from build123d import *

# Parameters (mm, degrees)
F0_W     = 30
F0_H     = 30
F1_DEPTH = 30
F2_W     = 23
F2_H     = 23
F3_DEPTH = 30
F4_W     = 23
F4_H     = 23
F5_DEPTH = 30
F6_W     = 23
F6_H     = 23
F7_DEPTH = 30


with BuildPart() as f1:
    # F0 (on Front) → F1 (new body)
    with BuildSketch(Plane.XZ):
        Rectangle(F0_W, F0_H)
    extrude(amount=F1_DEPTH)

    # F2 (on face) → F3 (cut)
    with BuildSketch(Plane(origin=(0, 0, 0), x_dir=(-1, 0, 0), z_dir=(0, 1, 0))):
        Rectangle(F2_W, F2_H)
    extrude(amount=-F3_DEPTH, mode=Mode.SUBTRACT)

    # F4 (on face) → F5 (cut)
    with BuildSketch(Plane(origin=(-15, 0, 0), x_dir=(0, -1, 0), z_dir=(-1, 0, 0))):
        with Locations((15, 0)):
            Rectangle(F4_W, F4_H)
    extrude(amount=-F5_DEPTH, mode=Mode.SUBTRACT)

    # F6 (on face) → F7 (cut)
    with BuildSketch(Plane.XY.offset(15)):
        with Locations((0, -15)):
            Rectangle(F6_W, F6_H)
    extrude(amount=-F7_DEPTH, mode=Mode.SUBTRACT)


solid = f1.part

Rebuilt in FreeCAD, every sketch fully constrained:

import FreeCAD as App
import Part
import Sketcher
Q = App.Units.Quantity


def add_polygon(sketch, points):
    """Adds a closed chain of lines whose ends are joined by coincident constraints."""
    first, n = sketch.GeometryCount, len(points)
    for a, b in zip(points, points[1:] + points[:1]):
        sketch.addGeometry(Part.LineSegment(App.Vector(*a, 0), App.Vector(*b, 0)), False)
    for i in range(n):
        sketch.addConstraint(Sketcher.Constraint("Coincident", first + i, 2, first + (i + 1) % n, 1))

doc = App.newDocument("Part")
body = doc.addObject("PartDesign::Body", "Body")

# Sketch on XZ plane
sketch1 = body.newObject("Sketcher::SketchObject", "Sketch")
sketch1.AttachmentSupport = (doc.getObject("XZ_Plane"), [""])
sketch1.MapMode = "FlatFace"
add_polygon(sketch1, [(-15, 15), (-15, -15), (15, -15), (15, 15)])  # lines 0-3
sketch1.addConstraint([
    Sketcher.Constraint("Vertical", 0),
    Sketcher.Constraint("Horizontal", 1),
    Sketcher.Constraint("Vertical", 2),
    Sketcher.Constraint("Horizontal", 3),
    Sketcher.Constraint("Symmetric", 0, 2, 2, 2, -1, 1),
    Sketcher.Constraint("Equal", 3, 0),
    Sketcher.Constraint("DistanceX", 1, 1, 1, 2, Q("30 mm")),
])
pad1 = body.newObject("PartDesign::Pad", "Pad")
pad1.Profile = sketch1
pad1.Length = 30

# Sketch on XZ plane
sketch2 = body.newObject("Sketcher::SketchObject", "Sketch001")
sketch2.AttachmentSupport = (doc.getObject("XZ_Plane"), [""])
sketch2.MapMode = "FlatFace"
add_polygon(sketch2, [(12, 12), (12, -12), (-12, -12), (-12, 12)])  # lines 0-3
sketch2.addConstraint([
    Sketcher.Constraint("Vertical", 0),
    Sketcher.Constraint("Horizontal", 1),
    Sketcher.Constraint("Vertical", 2),
    Sketcher.Constraint("Horizontal", 3),
    Sketcher.Constraint("Symmetric", 0, 2, 2, 2, -1, 1),
    Sketcher.Constraint("Equal", 3, 0),
    Sketcher.Constraint("DistanceX", 1, 2, 1, 1, Q("23 mm")),
])
pocket1 = body.newObject("PartDesign::Pocket", "Pocket")
pocket1.Profile = sketch2
pocket1.Length = 30
pocket1.Reversed = True

# Sketch on YZ plane
sketch3 = body.newObject("Sketcher::SketchObject", "Sketch002")
sketch3.AttachmentSupport = (doc.getObject("YZ_Plane"), [""])
sketch3.MapMode = "FlatFace"
sketch3.AttachmentOffset = App.Placement(App.Vector(0, 0, -15), App.Rotation())
add_polygon(sketch3, [(-4, 12), (-4, -12), (-26, -12), (-26, 12)])  # lines 0-3
sketch3.addConstraint([
    Sketcher.Constraint("Vertical", 0),
    Sketcher.Constraint("Horizontal", 1),
    Sketcher.Constraint("Vertical", 2),
    Sketcher.Constraint("Horizontal", 3),
    Sketcher.Constraint("Equal", 3, 0),
    Sketcher.Constraint("DistanceX", 1, 2, 1, 1, Q("23 mm")),
    Sketcher.Constraint("DistanceX", 0, 2, -1, 1, Q("3.5 mm")),
    Sketcher.Constraint("DistanceY", 0, 2, -1, 1, Q("11.5 mm")),
])
pocket2 = body.newObject("PartDesign::Pocket", "Pocket001")
pocket2.Profile = sketch3
pocket2.Length = 30
pocket2.Reversed = True

# Sketch on XY plane
sketch4 = body.newObject("Sketcher::SketchObject", "Sketch003")
sketch4.AttachmentSupport = (doc.getObject("XY_Plane"), [""])
sketch4.MapMode = "FlatFace"
sketch4.AttachmentOffset = App.Placement(App.Vector(0, 0, 15), App.Rotation())
add_polygon(sketch4, [(-12, -4), (-12, -26), (12, -26), (12, -4)])  # lines 0-3
sketch4.addConstraint([
    Sketcher.Constraint("Vertical", 0),
    Sketcher.Constraint("Horizontal", 1),
    Sketcher.Constraint("Vertical", 2),
    Sketcher.Constraint("Horizontal", 3),
    Sketcher.Constraint("Equal", 3, 0),
    Sketcher.Constraint("DistanceX", 1, 1, 1, 2, Q("23 mm")),
    Sketcher.Constraint("DistanceX", 0, 2, -1, 1, Q("11.5 mm")),
    Sketcher.Constraint("DistanceY", 0, 2, -1, 1, Q("26.5 mm")),
])
pocket3 = body.newObject("PartDesign::Pocket", "Pocket002")
pocket3.Profile = sketch4
pocket3.Length = 30

doc.recompute()
